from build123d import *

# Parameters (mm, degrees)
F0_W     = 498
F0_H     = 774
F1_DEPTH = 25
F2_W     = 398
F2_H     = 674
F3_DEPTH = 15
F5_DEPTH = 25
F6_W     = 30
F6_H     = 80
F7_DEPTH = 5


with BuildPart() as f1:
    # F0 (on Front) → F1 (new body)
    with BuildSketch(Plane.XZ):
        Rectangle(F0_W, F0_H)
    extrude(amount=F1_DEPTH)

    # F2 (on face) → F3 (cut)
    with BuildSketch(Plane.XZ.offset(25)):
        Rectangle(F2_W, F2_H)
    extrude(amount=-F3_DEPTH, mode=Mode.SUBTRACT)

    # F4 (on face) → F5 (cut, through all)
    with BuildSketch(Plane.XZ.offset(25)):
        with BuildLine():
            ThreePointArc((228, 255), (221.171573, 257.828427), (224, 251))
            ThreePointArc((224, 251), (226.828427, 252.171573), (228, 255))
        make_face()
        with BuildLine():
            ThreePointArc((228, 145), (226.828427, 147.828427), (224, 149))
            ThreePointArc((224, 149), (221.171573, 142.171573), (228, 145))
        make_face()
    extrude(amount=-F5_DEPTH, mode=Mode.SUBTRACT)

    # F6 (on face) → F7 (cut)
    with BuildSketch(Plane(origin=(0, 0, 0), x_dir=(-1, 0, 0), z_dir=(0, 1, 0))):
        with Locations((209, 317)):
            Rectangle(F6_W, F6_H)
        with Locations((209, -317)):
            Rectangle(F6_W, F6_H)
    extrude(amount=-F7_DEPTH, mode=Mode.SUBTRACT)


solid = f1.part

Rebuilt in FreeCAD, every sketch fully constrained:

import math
import FreeCAD as App
import Part
import Sketcher

doc = App.newDocument("Part")
params = doc.addObject("Spreadsheet::Sheet", "Params")
for row, (alias, value) in enumerate([
    ("sketch1_width", "498 mm"),
    ("sketch1_height", "774 mm"),
    ("pad1_length", "25 mm"),
    ("sketch2_width", "398 mm"),
    ("sketch2_height", "674 mm"),
    ("pocket1_length", "15 mm"),
    ("sketch3_radius", "4 mm"),
    ("sketch4_width", "30 mm"),
    ("sketch4_height", "80 mm"),
    ("pocket3_length", "5 mm"),
], start=1):
    params.set(f"A{row}", alias)
    params.set(f"B{row}", "=" + value)
    params.setAlias(f"B{row}", alias)

body = doc.addObject("PartDesign::Body", "Body")

# Sketch on XZ plane
sketch1 = body.newObject("Sketcher::SketchObject", "Sketch")
sketch1.AttachmentSupport = (doc.getObject("XZ_Plane"), [""])
sketch1.MapMode = "FlatFace"
sketch1.addGeometry([
    Part.LineSegment(App.Vector(-249, 387, 0), App.Vector(-249, -387, 0)),
    Part.LineSegment(App.Vector(-249, -387, 0), App.Vector(249, -387, 0)),
    Part.LineSegment(App.Vector(249, -387, 0), App.Vector(249, 387, 0)),
    Part.LineSegment(App.Vector(249, 387, 0), App.Vector(-249, 387, 0)),
], False)
sketch1.addConstraint([
    Sketcher.Constraint("Coincident", 0, 2, 1, 1),
    Sketcher.Constraint("Coincident", 1, 2, 2, 1),
    Sketcher.Constraint("Coincident", 2, 2, 3, 1),
    Sketcher.Constraint("Coincident", 3, 2, 0, 1),
    Sketcher.Constraint("Vertical", 0),
    Sketcher.Constraint("Horizontal", 1),
    Sketcher.Constraint("Vertical", 2),
    Sketcher.Constraint("Horizontal", 3),
    Sketcher.Constraint("Symmetric", 0, 2, 2, 2, -1, 1),
    Sketcher.Constraint("DistanceX", 1, 1, 1, 2, 498.0),
    Sketcher.Constraint("DistanceY", 0, 2, 0, 1, 774.0),
])
sketch1.setExpression("Constraints[9]", "Params.sketch1_width")
sketch1.setExpression("Constraints[10]", "Params.sketch1_height")
pad1 = body.newObject("PartDesign::Pad", "Pad")
pad1.Profile = sketch1
pad1.setExpression("Length", "Params.pad1_length")

# Sketch on XZ plane
sketch2 = body.newObject("Sketcher::SketchObject", "Sketch001")
sketch2.AttachmentSupport = (doc.getObject("XZ_Plane"), [""])
sketch2.MapMode = "FlatFace"
sketch2.AttachmentOffset = App.Placement(App.Vector(0, 0, 25), App.Rotation())
sketch2.addGeometry([
    Part.LineSegment(App.Vector(-199, 337, 0), App.Vector(-199, -337, 0)),
    Part.LineSegment(App.Vector(-199, -337, 0), App.Vector(199, -337, 0)),
    Part.LineSegment(App.Vector(199, -337, 0), App.Vector(199, 337, 0)),
    Part.LineSegment(App.Vector(199, 337, 0), App.Vector(-199, 337, 0)),
], False)
sketch2.addConstraint([
    Sketcher.Constraint("Coincident", 0, 2, 1, 1),
    Sketcher.Constraint("Coincident", 1, 2, 2, 1),
    Sketcher.Constraint("Coincident", 2, 2, 3, 1),
    Sketcher.Constraint("Coincident", 3, 2, 0, 1),
    Sketcher.Constraint("Vertical", 0),
    Sketcher.Constraint("Horizontal", 1),
    Sketcher.Constraint("Vertical", 2),
    Sketcher.Constraint("Horizontal", 3),
    Sketcher.Constraint("Symmetric", 0, 2, 2, 2, -1, 1),
    Sketcher.Constraint("DistanceX", 1, 1, 1, 2, 398.0),
    Sketcher.Constraint("DistanceY", 0, 2, 0, 1, 674.0),
])
sketch2.setExpression("Constraints[9]", "Params.sketch2_width")
sketch2.setExpression("Constraints[10]", "Params.sketch2_height")
pocket1 = body.newObject("PartDesign::Pocket", "Pocket")
pocket1.Profile = sketch2
pocket1.setExpression("Length", "Params.pocket1_length")

# Sketch on XZ plane
sketch3 = body.newObject("Sketcher::SketchObject", "Sketch002")
sketch3.AttachmentSupport = (doc.getObject("XZ_Plane"), [""])
sketch3.MapMode = "FlatFace"
sketch3.AttachmentOffset = App.Placement(App.Vector(0, 0, 25), App.Rotation())
sketch3.addGeometry([
    Part.ArcOfCircle(Part.Circle(App.Vector(224, 255, 0), App.Vector(0, 0, 1), 4), math.radians(0), math.radians(270)),
    Part.ArcOfCircle(Part.Circle(App.Vector(224, 255, 0), App.Vector(0, 0, 1), 4), math.radians(-90), math.radians(0)),
    Part.ArcOfCircle(Part.Circle(App.Vector(224, 145, 0), App.Vector(0, 0, 1), 4), math.radians(0), math.radians(90)),
    Part.ArcOfCircle(Part.Circle(App.Vector(224, 145, 0), App.Vector(0, 0, 1), 4), math.radians(90), math.radians(360)),
], False)
sketch3.addConstraint([
    Sketcher.Constraint("Tangent", 0, 1, 1, 2),
    Sketcher.Constraint("Coincident", 1, 1, 0, 2),
    Sketcher.Constraint("Tangent", 2, 1, 3, 2),
    Sketcher.Constraint("Coincident", 3, 1, 2, 2),
    Sketcher.Constraint("Equal", 1, 2),
    Sketcher.Constraint("Horizontal", 1, 3, 0, 1),
    Sketcher.Constraint("Horizontal", 3, 3, 2, 1),
    Sketcher.Constraint("Vertical", 1, 3, 2, 3),
    Sketcher.Constraint("Vertical", 3, 3, 1, 1),
    Sketcher.Constraint("Vertical", 1, 1, 3, 1),
    Sketcher.Constraint("Radius", 0, 4.0),
    Sketcher.Constraint("DistanceX", -1, 1, 0, 3, 224.0),
    Sketcher.Constraint("DistanceY", -1, 1, 0, 3, 255.0),
    Sketcher.Constraint("DistanceY", -1, 1, 2, 3, 145.0),
])
sketch3.setExpression("Constraints[10]", "Params.sketch3_radius")
pocket2 = body.newObject("PartDesign::Pocket", "Pocket001")
pocket2.Profile = sketch3
pocket2.Type = "ThroughAll"

# Sketch on XZ plane
sketch4 = body.newObject("Sketcher::SketchObject", "Sketch003")
sketch4.AttachmentSupport = (doc.getObject("XZ_Plane"), [""])
sketch4.MapMode = "FlatFace"
sketch4.addGeometry([
    Part.LineSegment(App.Vector(-194, 357, 0), App.Vector(-194, 277, 0)),  # 0
    Part.LineSegment(App.Vector(-194, 277, 0), App.Vector(-224, 277, 0)),  # 1
    Part.LineSegment(App.Vector(-224, 277, 0), App.Vector(-224, 357, 0)),  # 2
    Part.LineSegment(App.Vector(-224, 357, 0), App.Vector(-194, 357, 0)),  # 3
    Part.LineSegment(App.Vector(-194, -277, 0), App.Vector(-194, -357, 0)),  # 4
    Part.LineSegment(App.Vector(-194, -357, 0), App.Vector(-224, -357, 0)),  # 5
    Part.LineSegment(App.Vector(-224, -357, 0), App.Vector(-224, -277, 0)),  # 6
    Part.LineSegment(App.Vector(-224, -277, 0), App.Vector(-194, -277, 0)),  # 7
], False)
sketch4.addConstraint([
    Sketcher.Constraint("Coincident", 0, 2, 1, 1),
    Sketcher.Constraint("Coincident", 1, 2, 2, 1),
    Sketcher.Constraint("Coincident", 2, 2, 3, 1),
    Sketcher.Constraint("Coincident", 3, 2, 0, 1),
    Sketcher.Constraint("Coincident", 4, 2, 5, 1),
    Sketcher.Constraint("Coincident", 5, 2, 6, 1),
    Sketcher.Constraint("Coincident", 6, 2, 7, 1),
    Sketcher.Constraint("Coincident", 7, 2, 4, 1),
    Sketcher.Constraint("Vertical", 0),
    Sketcher.Constraint("Horizontal", 1),
    Sketcher.Constraint("Vertical", 2),
    Sketcher.Constraint("Horizontal", 3),
    Sketcher.Constraint("Vertical", 4),
    Sketcher.Constraint("Horizontal", 5),
    Sketcher.Constraint("Vertical", 6),
    Sketcher.Constraint("Horizontal", 7),
    Sketcher.Constraint("Symmetric", 3, 2, 4, 2, -1),
    Sketcher.Constraint("Symmetric", 1, 2, 6, 2, -1),
    Sketcher.Constraint("DistanceX", 1, 2, 1, 1, 30.0),
    Sketcher.Constraint("DistanceY", 0, 2, 0, 1, 80.0),
    Sketcher.Constraint("DistanceX", 0, 2, -1, 1, 194.0),
    Sketcher.Constraint("DistanceY", -1, 1, 0, 2, 277.0),
])
sketch4.setExpression("Constraints[18]", "Params.sketch4_width")
sketch4.setExpression("Constraints[19]", "Params.sketch4_height")
pocket3 = body.newObject("PartDesign::Pocket", "Pocket002")
pocket3.Profile = sketch4
pocket3.setExpression("Length", "Params.pocket3_length")
pocket3.Reversed = True

doc.recompute()
